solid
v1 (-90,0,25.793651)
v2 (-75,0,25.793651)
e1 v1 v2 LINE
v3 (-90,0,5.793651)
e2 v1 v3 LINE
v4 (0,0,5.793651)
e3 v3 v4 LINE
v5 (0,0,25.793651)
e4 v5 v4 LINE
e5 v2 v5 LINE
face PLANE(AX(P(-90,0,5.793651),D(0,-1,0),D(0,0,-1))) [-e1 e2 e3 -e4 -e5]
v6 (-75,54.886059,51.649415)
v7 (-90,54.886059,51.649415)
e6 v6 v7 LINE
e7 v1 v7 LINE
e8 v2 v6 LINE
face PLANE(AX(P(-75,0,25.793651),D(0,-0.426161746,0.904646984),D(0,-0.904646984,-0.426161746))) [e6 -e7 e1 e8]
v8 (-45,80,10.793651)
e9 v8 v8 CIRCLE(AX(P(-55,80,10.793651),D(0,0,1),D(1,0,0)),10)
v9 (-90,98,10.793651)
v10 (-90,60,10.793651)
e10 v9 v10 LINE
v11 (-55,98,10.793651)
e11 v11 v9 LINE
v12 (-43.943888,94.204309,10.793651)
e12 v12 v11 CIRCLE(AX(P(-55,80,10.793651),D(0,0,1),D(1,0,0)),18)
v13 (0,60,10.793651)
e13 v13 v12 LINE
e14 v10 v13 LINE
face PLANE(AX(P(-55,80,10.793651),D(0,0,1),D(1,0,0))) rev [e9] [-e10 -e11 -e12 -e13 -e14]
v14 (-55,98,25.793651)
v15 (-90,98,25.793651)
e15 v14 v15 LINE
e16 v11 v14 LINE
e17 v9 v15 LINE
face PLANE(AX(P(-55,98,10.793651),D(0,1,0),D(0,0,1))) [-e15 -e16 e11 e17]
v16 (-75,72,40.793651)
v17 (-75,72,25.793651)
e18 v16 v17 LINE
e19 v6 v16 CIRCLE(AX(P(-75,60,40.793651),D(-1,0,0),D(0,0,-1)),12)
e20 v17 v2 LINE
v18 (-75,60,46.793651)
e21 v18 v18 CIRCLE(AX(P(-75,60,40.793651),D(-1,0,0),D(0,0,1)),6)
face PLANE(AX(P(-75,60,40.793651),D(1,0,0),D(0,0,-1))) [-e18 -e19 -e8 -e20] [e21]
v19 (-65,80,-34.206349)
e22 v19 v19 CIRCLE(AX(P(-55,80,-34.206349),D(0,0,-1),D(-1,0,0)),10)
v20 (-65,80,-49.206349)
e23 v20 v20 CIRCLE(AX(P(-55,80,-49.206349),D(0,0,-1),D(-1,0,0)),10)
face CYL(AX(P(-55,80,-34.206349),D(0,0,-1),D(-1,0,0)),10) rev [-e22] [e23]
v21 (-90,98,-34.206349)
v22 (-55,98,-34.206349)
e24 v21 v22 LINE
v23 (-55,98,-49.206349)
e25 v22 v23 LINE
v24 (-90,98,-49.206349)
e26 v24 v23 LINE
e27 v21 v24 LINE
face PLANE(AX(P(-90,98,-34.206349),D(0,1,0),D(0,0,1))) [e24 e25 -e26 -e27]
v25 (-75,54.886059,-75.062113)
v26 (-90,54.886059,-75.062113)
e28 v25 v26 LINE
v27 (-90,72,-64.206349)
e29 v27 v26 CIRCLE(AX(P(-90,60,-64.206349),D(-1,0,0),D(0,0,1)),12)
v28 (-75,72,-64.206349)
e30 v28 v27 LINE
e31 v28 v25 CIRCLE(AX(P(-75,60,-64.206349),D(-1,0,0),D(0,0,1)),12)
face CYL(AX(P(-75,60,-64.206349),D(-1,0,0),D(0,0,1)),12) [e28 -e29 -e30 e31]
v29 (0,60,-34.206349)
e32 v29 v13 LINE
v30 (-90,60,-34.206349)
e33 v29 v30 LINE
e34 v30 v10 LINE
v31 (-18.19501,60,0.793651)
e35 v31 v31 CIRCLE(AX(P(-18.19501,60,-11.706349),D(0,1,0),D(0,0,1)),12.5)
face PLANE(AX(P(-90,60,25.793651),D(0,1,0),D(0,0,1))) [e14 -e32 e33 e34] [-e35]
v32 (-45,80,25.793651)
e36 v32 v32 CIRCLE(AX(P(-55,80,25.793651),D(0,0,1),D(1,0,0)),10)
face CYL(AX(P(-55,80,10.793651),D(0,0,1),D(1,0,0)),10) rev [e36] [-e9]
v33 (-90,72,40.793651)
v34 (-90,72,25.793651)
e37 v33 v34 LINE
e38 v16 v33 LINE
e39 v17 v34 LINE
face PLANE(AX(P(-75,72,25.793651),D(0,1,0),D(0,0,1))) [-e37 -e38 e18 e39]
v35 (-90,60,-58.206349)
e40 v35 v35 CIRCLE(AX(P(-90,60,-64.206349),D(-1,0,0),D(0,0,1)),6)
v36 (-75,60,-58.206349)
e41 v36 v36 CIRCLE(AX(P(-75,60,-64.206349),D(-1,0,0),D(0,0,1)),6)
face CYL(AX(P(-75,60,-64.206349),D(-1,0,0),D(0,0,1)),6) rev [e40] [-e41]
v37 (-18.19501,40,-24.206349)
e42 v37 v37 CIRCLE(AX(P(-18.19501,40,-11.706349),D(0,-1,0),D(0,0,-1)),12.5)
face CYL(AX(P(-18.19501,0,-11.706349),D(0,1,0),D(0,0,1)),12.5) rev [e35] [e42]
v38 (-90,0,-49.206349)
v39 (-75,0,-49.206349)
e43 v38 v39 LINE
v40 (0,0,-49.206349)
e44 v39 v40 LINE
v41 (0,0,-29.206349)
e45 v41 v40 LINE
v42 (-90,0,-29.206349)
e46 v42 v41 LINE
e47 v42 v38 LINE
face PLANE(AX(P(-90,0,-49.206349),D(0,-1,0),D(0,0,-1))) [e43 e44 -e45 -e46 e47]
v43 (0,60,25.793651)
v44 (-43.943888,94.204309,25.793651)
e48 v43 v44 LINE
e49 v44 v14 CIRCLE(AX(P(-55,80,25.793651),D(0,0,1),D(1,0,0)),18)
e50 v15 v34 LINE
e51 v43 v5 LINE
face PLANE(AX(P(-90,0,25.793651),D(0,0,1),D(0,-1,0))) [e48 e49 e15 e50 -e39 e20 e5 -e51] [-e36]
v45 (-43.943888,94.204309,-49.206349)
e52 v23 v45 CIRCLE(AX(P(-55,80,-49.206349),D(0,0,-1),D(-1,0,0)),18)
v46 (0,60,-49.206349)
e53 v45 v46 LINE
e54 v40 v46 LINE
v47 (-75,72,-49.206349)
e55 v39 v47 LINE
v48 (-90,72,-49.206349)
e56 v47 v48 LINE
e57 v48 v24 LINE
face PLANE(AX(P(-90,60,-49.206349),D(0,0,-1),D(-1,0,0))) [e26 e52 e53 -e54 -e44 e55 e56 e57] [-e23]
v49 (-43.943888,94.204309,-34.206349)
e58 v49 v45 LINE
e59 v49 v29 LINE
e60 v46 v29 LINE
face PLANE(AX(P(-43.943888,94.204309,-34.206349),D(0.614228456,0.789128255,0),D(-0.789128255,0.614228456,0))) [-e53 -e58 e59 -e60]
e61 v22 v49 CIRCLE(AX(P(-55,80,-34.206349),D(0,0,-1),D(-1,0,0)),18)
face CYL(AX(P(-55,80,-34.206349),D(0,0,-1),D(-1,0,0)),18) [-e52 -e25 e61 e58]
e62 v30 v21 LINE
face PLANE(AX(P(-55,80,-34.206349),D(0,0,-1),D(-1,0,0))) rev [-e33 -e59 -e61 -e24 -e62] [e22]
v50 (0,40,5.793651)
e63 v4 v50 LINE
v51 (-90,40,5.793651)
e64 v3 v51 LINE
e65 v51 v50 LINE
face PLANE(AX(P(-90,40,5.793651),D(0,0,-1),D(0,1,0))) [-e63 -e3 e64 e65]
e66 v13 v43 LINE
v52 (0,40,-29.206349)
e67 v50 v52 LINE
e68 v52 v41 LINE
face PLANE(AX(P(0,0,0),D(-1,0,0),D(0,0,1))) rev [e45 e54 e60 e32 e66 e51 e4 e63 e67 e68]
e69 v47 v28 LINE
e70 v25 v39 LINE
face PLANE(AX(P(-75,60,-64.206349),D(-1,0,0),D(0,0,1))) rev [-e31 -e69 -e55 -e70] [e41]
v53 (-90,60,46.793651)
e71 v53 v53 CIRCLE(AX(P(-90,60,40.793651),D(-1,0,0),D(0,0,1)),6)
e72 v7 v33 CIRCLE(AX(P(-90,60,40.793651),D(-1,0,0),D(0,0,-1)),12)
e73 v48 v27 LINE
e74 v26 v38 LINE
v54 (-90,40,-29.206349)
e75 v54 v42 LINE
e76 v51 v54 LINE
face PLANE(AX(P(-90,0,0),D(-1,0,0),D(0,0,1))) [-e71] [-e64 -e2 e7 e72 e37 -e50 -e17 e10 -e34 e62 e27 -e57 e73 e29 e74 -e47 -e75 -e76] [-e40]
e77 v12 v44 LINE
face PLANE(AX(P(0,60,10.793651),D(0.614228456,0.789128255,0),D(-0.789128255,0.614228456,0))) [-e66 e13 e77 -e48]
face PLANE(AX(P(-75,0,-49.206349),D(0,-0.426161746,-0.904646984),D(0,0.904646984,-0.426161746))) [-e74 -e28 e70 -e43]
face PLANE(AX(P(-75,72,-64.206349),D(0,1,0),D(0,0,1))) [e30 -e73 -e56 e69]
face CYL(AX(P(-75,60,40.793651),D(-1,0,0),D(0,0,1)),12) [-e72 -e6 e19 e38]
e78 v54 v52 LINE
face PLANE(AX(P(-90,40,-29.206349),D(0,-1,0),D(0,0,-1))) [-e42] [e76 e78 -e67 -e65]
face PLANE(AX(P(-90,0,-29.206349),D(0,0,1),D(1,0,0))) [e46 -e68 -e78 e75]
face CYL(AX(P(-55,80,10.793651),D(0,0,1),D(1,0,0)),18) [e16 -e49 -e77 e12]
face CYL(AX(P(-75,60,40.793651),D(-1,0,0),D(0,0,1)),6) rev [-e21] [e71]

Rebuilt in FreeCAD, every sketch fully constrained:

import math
import FreeCAD as App
import Part
import Sketcher

V = App.Vector
Q = App.Units.Quantity

doc = App.newDocument("Part")
body = doc.addObject("PartDesign::Body", "Body")

# Sketch on YZ plane
sketch1 = body.newObject("Sketcher::SketchObject", "Sketch")
sketch1.AttachmentSupport = (doc.getObject("YZ_Plane"), [""])
sketch1.MapMode = "FlatFace"
sketch1.addGeometry(Part.LineSegment(V(60, 26, 0), V(0, 26, 0)), False)
sketch1.addGeometry(Part.LineSegment(V(0, 26, 0), V(0, 6, 0)), False)
sketch1.addGeometry(Part.LineSegment(V(0, 6, 0), V(40, 6, 0)), False)
sketch1.addGeometry(Part.LineSegment(V(40, 6, 0), V(40, -29, 0)), False)
sketch1.addGeometry(Part.LineSegment(V(40, -29, 0), V(0, -29, 0)), False)
sketch1.addGeometry(Part.LineSegment(V(0, -29, 0), V(0, -49, 0)), False)
sketch1.addGeometry(Part.LineSegment(V(0, -49, 0), V(60, -49, 0)), False)
sketch1.addGeometry(Part.LineSegment(V(60, -49, 0), V(60, 26, 0)), False)
sketch1.addConstraint(Sketcher.Constraint("Coincident", 0, 2, 1, 1))
sketch1.addConstraint(Sketcher.Constraint("Coincident", 1, 2, 2, 1))
sketch1.addConstraint(Sketcher.Constraint("Coincident", 2, 2, 3, 1))
sketch1.addConstraint(Sketcher.Constraint("Coincident", 3, 2, 4, 1))
sketch1.addConstraint(Sketcher.Constraint("Coincident", 4, 2, 5, 1))
sketch1.addConstraint(Sketcher.Constraint("Coincident", 5, 2, 6, 1))
sketch1.addConstraint(Sketcher.Constraint("Coincident", 6, 2, 7, 1))
sketch1.addConstraint(Sketcher.Constraint("Coincident", 7, 2, 0, 1))
sketch1.addConstraint(Sketcher.Constraint("Horizontal", 0))
sketch1.addConstraint(Sketcher.Constraint("Vertical", 1))
sketch1.addConstraint(Sketcher.Constraint("Horizontal", 2))
sketch1.addConstraint(Sketcher.Constraint("Vertical", 3))
sketch1.addConstraint(Sketcher.Constraint("Horizontal", 4))
sketch1.addConstraint(Sketcher.Constraint("Vertical", 5))
sketch1.addConstraint(Sketcher.Constraint("Horizontal", 6))
sketch1.addConstraint(Sketcher.Constraint("Vertical", 7))
sketch1.addConstraint(Sketcher.Constraint("PointOnObject", 0, 2, -2))
sketch1.addConstraint(Sketcher.Constraint("PointOnObject", 4, 2, -2))
sketch1.addConstraint(Sketcher.Constraint("Equal", 1, 5))
sketch1.addConstraint(Sketcher.Constraint("DistanceX", 0, 2, 0, 1, Q("60 mm")))
sketch1.addConstraint(Sketcher.Constraint("DistanceX", 2, 1, 2, 2, Q("40 mm")))
sketch1.addConstraint(Sketcher.Constraint("DistanceY", 1, 2, 1, 1, Q("20 mm")))
sketch1.addConstraint(Sketcher.Constraint("DistanceY", 3, 2, 3, 1, Q("35 mm")))
sketch1.addConstraint(Sketcher.Constraint("DistanceY", -1, 1, 0, 2, Q("25.793651 mm")))
pad1 = body.newObject("PartDesign::Pad", "Pad")
pad1.Profile = sketch1
pad1.Length = 90
pad1.Reversed = True

# Sketch on XY plane
sketch2 = body.newObject("Sketcher::SketchObject", "Sketch001")
sketch2.AttachmentSupport = (doc.getObject("XY_Plane"), [""])
sketch2.MapMode = "FlatFace"
sketch2.AttachmentOffset = App.Placement(V(0, 0, 25.793651), App.Rotation())
sketch2.addGeometry(Part.LineSegment(V(0, 60, 0), V(-44, 94, 0)), False)
sketch2.addGeometry(Part.ArcOfCircle(Part.Circle(V(-55, 80, 0), V(0, 0, 1), 18), math.radians(52), math.radians(90)), False)
sketch2.addGeometry(Part.LineSegment(V(-55, 98, 0), V(-90, 98, 0)), False)
sketch2.addGeometry(Part.LineSegment(V(-90, 98, 0), V(-90, 60, 0)), False)
sketch2.addGeometry(Part.LineSegment(V(-90, 60, 0), V(0, 60, 0)), False)
sketch2.addGeometry(Part.Circle(V(-55, 80, 0), V(0, 0, 1), 10), False)
sketch2.addConstraint(Sketcher.Constraint("Tangent", 0, 2, 1, 1))
sketch2.addConstraint(Sketcher.Constraint("Tangent", 1, 2, 2, 1))
sketch2.addConstraint(Sketcher.Constraint("Coincident", 2, 2, 3, 1))
sketch2.addConstraint(Sketcher.Constraint("Coincident", 3, 2, 4, 1))
sketch2.addConstraint(Sketcher.Constraint("Coincident", 4, 2, 0, 1))
sketch2.addConstraint(Sketcher.Constraint("Horizontal", 2))
sketch2.addConstraint(Sketcher.Constraint("Vertical", 3))
sketch2.addConstraint(Sketcher.Constraint("Horizontal", 4))
sketch2.addConstraint(Sketcher.Constraint("Coincident", 5, 3, 1, 3))
sketch2.addConstraint(Sketcher.Constraint("PointOnObject", 4, 2, -2))
sketch2.addConstraint(Sketcher.Constraint("Diameter", 5, Q("20 mm")))
sketch2.addConstraint(Sketcher.Constraint("Radius", 1, Q("18 mm")))
sketch2.addConstraint(Sketcher.Constraint("DistanceX", 2, 2, 2, 1, Q("35 mm")))
sketch2.addConstraint(Sketcher.Constraint("DistanceX", 4, 1, 4, 2, Q("90 mm")))
sketch2.addConstraint(Sketcher.Constraint("DistanceY", 3, 2, 3, 1, Q("38 mm")))
sketch2.addConstraint(Sketcher.Constraint("DistanceY", -1, 1, 1, 3, Q("80 mm")))
pad2 = body.newObject("PartDesign::Pad", "Pad001")
pad2.Profile = sketch2
pad2.Length = 15
pad2.Reversed = True

# Sketch on XY plane
sketch3 = body.newObject("Sketcher::SketchObject", "Sketch002")
sketch3.AttachmentSupport = (doc.getObject("XY_Plane"), [""])
sketch3.MapMode = "FlatFace"
sketch3.AttachmentOffset = App.Placement(V(0, 0, -34.206349), App.Rotation())
sketch3.addGeometry(Part.LineSegment(V(0, 60, 0), V(-90, 60, 0)), False)
sketch3.addGeometry(Part.LineSegment(V(-90, 60, 0), V(-90, 98, 0)), False)
sketch3.addGeometry(Part.LineSegment(V(-90, 98, 0), V(-55, 98, 0)), False)
sketch3.addGeometry(Part.ArcOfCircle(Part.Circle(V(-55, 80, 0), V(0, 0, 1), 18), math.radians(52), math.radians(90)), False)
sketch3.addGeometry(Part.LineSegment(V(-44, 94, 0), V(0, 60, 0)), False)
sketch3.addGeometry(Part.Circle(V(-55, 80, 0), V(0, 0, 1), 10), False)
sketch3.addConstraint(Sketcher.Constraint("Coincident", 0, 2, 1, 1))
sketch3.addConstraint(Sketcher.Constraint("Coincident", 1, 2, 2, 1))
sketch3.addConstraint(Sketcher.Constraint("Tangent", 2, 2, 3, 2))
sketch3.addConstraint(Sketcher.Constraint("Tangent", 3, 1, 4, 1))
sketch3.addConstraint(Sketcher.Constraint("Coincident", 4, 2, 0, 1))
sketch3.addConstraint(Sketcher.Constraint("Horizontal", 0))
sketch3.addConstraint(Sketcher.Constraint("Vertical", 1))
sketch3.addConstraint(Sketcher.Constraint("Horizontal", 2))
sketch3.addConstraint(Sketcher.Constraint("Coincident", 5, 3, 3, 3))
sketch3.addConstraint(Sketcher.Constraint("PointOnObject", 4, 2, -2))
sketch3.addConstraint(Sketcher.Constraint("Diameter", 5, Q("20 mm")))
sketch3.addConstraint(Sketcher.Constraint("Radius", 3, Q("18 mm")))
sketch3.addConstraint(Sketcher.Constraint("DistanceX", 0, 2, 0, 1, Q("90 mm")))
sketch3.addConstraint(Sketcher.Constraint("DistanceX", 2, 1, 2, 2, Q("35 mm")))
sketch3.addConstraint(Sketcher.Constraint("DistanceY", 1, 1, 1, 2, Q("38 mm")))
sketch3.addConstraint(Sketcher.Constraint("DistanceY", -1, 1, 3, 3, Q("80 mm")))
pad3 = body.newObject("PartDesign::Pad", "Pad002")
pad3.Profile = sketch3
pad3.Length = 15
pad3.Reversed = True

# Sketch on YZ plane
sketch4 = body.newObject("Sketcher::SketchObject", "Sketch003")
sketch4.AttachmentSupport = (doc.getObject("YZ_Plane"), [""])
sketch4.MapMode = "FlatFace"
sketch4.AttachmentOffset = App.Placement(V(0, 0, -90), App.Rotation())
sketch4.addGeometry(Part.LineSegment(V(72, 26, 0), V(0, 26, 0)), False)
sketch4.addGeometry(Part.LineSegment(V(0, 26, 0), V(55, 52, 0)), False)
sketch4.addGeometry(Part.ArcOfCircle(Part.Circle(V(60, 41, 0), V(0, 0, 1), 12), math.radians(0), math.radians(115)), False)
sketch4.addGeometry(Part.LineSegment(V(72, 41, 0), V(72, 26, 0)), False)
sketch4.addGeometry(Part.Circle(V(60, 41, 0), V(0, 0, 1), 6), False)
sketch4.addConstraint(Sketcher.Constraint("Coincident", 0, 2, 1, 1))
sketch4.addConstraint(Sketcher.Constraint("Tangent", 1, 2, 2, 2))
sketch4.addConstraint(Sketcher.Constraint("Tangent", 2, 1, 3, 1))
sketch4.addConstraint(Sketcher.Constraint("Coincident", 3, 2, 0, 1))
sketch4.addConstraint(Sketcher.Constraint("Horizontal", 0))
sketch4.addConstraint(Sketcher.Constraint("Vertical", 3))
sketch4.addConstraint(Sketcher.Constraint("Coincident", 4, 3, 2, 3))
sketch4.addConstraint(Sketcher.Constraint("PointOnObject", 0, 2, -2))
sketch4.addConstraint(Sketcher.Constraint("Diameter", 4, Q("12 mm")))
sketch4.addConstraint(Sketcher.Constraint("Radius", 2, Q("12 mm")))
sketch4.addConstraint(Sketcher.Constraint("DistanceX", 0, 2, 0, 1, Q("72 mm")))
sketch4.addConstraint(Sketcher.Constraint("DistanceY", 3, 2, 3, 1, Q("15 mm")))
sketch4.addConstraint(Sketcher.Constraint("DistanceY", -1, 1, 2, 3, Q("40.793651 mm")))
pad4 = body.newObject("PartDesign::Pad", "Pad003")
pad4.Profile = sketch4
pad4.Length = 15

# Sketch on YZ plane
sketch5 = body.newObject("Sketcher::SketchObject", "Sketch004")
sketch5.AttachmentSupport = (doc.getObject("YZ_Plane"), [""])
sketch5.MapMode = "FlatFace"
sketch5.AttachmentOffset = App.Placement(V(0, 0, -90), App.Rotation())
sketch5.addGeometry(Part.LineSegment(V(55, -75, 0), V(0, -49, 0)), False)
sketch5.addGeometry(Part.LineSegment(V(0, -49, 0), V(72, -49, 0)), False)
sketch5.addGeometry(Part.LineSegment(V(72, -49, 0), V(72, -64, 0)), False)
sketch5.addGeometry(Part.ArcOfCircle(Part.Circle(V(60, -64, 0), V(0, 0, 1), 12), math.radians(-115), math.radians(0)), False)
sketch5.addGeometry(Part.Circle(V(60, -64, 0), V(0, 0, 1), 6), False)
sketch5.addConstraint(Sketcher.Constraint("Coincident", 0, 2, 1, 1))
sketch5.addConstraint(Sketcher.Constraint("Coincident", 1, 2, 2, 1))
sketch5.addConstraint(Sketcher.Constraint("Tangent", 2, 2, 3, 2))
sketch5.addConstraint(Sketcher.Constraint("Tangent", 3, 1, 0, 1))
sketch5.addConstraint(Sketcher.Constraint("Horizontal", 1))
sketch5.addConstraint(Sketcher.Constraint("Vertical", 2))
sketch5.addConstraint(Sketcher.Constraint("Coincident", 4, 3, 3, 3))
sketch5.addConstraint(Sketcher.Constraint("PointOnObject", 0, 2, -2))
sketch5.addConstraint(Sketcher.Constraint("Diameter", 4, Q("12 mm")))
sketch5.addConstraint(Sketcher.Constraint("Radius", 3, Q("12 mm")))
sketch5.addConstraint(Sketcher.Constraint("DistanceX", 1, 1, 1, 2, Q("72 mm")))
sketch5.addConstraint(Sketcher.Constraint("DistanceY", 2, 2, 2, 1, Q("15 mm")))
sketch5.addConstraint(Sketcher.Constraint("DistanceY", 3, 3, -1, 1, Q("64.206349 mm")))
pad5 = body.newObject("PartDesign::Pad", "Pad004")
pad5.Profile = sketch5
pad5.Length = 15

# Sketch on XZ plane
sketch6 = body.newObject("Sketcher::SketchObject", "Sketch005")
sketch6.AttachmentSupport = (doc.getObject("XZ_Plane"), [""])
sketch6.MapMode = "FlatFace"
sketch6.AttachmentOffset = App.Placement(V(0, 0, -60), App.Rotation())
sketch6.addGeometry(Part.Circle(V(-18, -12, 0), V(0, 0, 1), 12), False)
sketch6.addConstraint(Sketcher.Constraint("Diameter", 0, Q("25 mm")))
sketch6.addConstraint(Sketcher.Constraint("DistanceX", 0, 3, -1, 1, Q("18.19501 mm")))
sketch6.addConstraint(Sketcher.Constraint("DistanceY", 0, 3, -1, 1, Q("11.706349 mm")))
pocket1 = body.newObject("PartDesign::Pocket", "Pocket")
pocket1.Profile = sketch6
pocket1.Type = "ThroughAll"
pocket1.Reversed = True

doc.recompute()
